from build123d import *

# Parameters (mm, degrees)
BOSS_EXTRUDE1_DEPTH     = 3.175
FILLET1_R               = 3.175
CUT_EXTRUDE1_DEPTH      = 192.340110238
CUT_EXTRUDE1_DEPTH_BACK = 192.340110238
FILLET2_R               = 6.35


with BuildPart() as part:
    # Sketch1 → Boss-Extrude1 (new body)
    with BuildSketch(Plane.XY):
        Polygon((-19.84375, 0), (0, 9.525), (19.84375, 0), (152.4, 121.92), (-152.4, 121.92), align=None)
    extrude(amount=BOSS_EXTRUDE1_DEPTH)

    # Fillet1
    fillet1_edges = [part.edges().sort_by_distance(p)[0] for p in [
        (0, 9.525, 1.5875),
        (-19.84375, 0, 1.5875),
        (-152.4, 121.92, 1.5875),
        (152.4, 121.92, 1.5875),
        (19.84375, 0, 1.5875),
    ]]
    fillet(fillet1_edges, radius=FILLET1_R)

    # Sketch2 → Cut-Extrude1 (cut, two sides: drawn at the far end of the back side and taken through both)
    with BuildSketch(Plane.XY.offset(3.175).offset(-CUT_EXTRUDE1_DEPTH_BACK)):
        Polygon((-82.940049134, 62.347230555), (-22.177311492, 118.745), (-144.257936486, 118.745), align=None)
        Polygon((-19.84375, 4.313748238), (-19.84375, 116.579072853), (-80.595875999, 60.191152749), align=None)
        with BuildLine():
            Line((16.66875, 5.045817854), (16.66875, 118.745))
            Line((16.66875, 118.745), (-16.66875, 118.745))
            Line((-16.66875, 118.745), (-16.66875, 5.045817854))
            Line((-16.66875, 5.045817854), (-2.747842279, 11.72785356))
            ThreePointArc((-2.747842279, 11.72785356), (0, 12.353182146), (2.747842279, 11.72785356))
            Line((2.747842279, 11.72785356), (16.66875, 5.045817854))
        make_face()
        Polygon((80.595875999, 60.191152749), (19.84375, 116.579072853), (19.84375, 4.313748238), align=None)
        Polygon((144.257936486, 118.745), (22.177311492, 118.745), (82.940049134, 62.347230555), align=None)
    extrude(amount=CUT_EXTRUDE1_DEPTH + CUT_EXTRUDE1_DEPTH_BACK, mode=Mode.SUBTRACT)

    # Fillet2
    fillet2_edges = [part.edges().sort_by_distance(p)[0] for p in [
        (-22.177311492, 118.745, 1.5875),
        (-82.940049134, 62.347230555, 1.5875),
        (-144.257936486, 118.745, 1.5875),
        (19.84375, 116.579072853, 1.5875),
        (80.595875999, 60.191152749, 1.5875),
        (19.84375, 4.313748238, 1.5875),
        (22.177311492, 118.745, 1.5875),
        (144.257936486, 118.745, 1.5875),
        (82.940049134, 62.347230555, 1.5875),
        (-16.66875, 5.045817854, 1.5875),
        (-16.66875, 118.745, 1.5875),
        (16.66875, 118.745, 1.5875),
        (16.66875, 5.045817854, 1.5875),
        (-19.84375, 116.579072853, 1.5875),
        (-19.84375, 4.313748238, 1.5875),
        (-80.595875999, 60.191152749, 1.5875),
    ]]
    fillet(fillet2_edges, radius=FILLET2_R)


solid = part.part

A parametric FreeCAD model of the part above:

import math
import FreeCAD as App
import Part
import Sketcher

V = App.Vector
Q = App.Units.Quantity


def edges_at(feature, points):
    """Names of the edges that pass closest to the given points."""
    edges = feature.Shape.Edges
    near = lambda p: min(range(len(edges)), key=lambda i: edges[i].distToShape(Part.Vertex(*p))[0])
    return sorted({f"Edge{near(p) + 1}" for p in points})


def add_polygon(sketch, points):
    """Adds a closed chain of lines whose ends are joined by coincident constraints."""
    first, n = sketch.GeometryCount, len(points)
    for a, b in zip(points, points[1:] + points[:1]):
        sketch.addGeometry(Part.LineSegment(App.Vector(*a, 0), App.Vector(*b, 0)), False)
    for i in range(n):
        sketch.addConstraint(Sketcher.Constraint("Coincident", first + i, 2, first + (i + 1) % n, 1))

doc = App.newDocument("Part")
body = doc.addObject("PartDesign::Body", "Body")

# Sketch on XY plane
sketch1 = body.newObject("Sketcher::SketchObject", "Sketch")
sketch1.AttachmentSupport = (doc.getObject("XY_Plane"), [""])
sketch1.MapMode = "FlatFace"
add_polygon(sketch1, [(-19.84375, 0), (0, 9.525), (19.84375, 0), (152.4, 121.92), (-152.4, 121.92)])  # lines 0-4
sketch1.addConstraint(Sketcher.Constraint("Horizontal", 3))
sketch1.addConstraint(Sketcher.Constraint("Symmetric", 1, 2, 4, 2, -1, 1))
sketch1.addConstraint(Sketcher.Constraint("PointOnObject", 0, 2, -2))
sketch1.addConstraint(Sketcher.Constraint("PointOnObject", 1, 2, -1))
sketch1.addConstraint(Sketcher.Constraint("Equal", 2, 4))
sketch1.addConstraint(Sketcher.Constraint("DistanceX", 3, 2, 3, 1, Q("12 in")))
sketch1.addConstraint(Sketcher.Constraint("DistanceY", -1, 1, 2, 2, Q("4.8 in")))
sketch1.addConstraint(Sketcher.Constraint("DistanceY", -1, 1, 0, 2, Q("0.375 in")))
sketch1.addConstraint(Sketcher.Constraint("DistanceX", -1, 1, 1, 2, Q("0.78125 in")))
pad1 = body.newObject("PartDesign::Pad", "Pad")
pad1.Profile = sketch1
pad1.Length = Q("0.125 in")
doc.recompute()

fillet = body.newObject("PartDesign::Fillet", "Fillet")
fillet.Base = (pad1, edges_at(pad1, [
    (0, 9.525, 1.587),
    (-19.844, 0, 1.587),
    (-152.4, 121.92, 1.587),
    (152.4, 121.92, 1.587),
    (19.844, 0, 1.587),
]))
fillet.Radius = Q("0.125 in")

# Sketch on XY plane
sketch2 = body.newObject("Sketcher::SketchObject", "Sketch001")
sketch2.AttachmentSupport = (doc.getObject("XY_Plane"), [""])
sketch2.MapMode = "FlatFace"
sketch2.AttachmentOffset = App.Placement(V(0, 0, 0.125 * 25.4), App.Rotation())
add_polygon(sketch2, [(-82.940049, 62.347231), (-22.177311, 118.745), (-144.257936, 118.745)])  # lines 0-2
add_polygon(sketch2, [(-19.84375, 4.313748), (-19.84375, 116.579073), (-80.595876, 60.191153)])  # lines 3-5
sketch2.addGeometry(Part.LineSegment(V(16.66875, 5.045818, 0), V(16.66875, 118.745, 0)), False)  # 6
sketch2.addGeometry(Part.LineSegment(V(16.66875, 118.745, 0), V(-16.66875, 118.745, 0)), False)  # 7
sketch2.addGeometry(Part.LineSegment(V(-16.66875, 118.745, 0), V(-16.66875, 5.045818, 0)), False)  # 8
sketch2.addGeometry(Part.LineSegment(V(-16.66875, 5.045818, 0), V(-2.747842, 11.727854, 0)), False)  # 9
sketch2.addGeometry(Part.ArcOfCircle(Part.Circle(V(0, 6.003182, 0), V(0, 0, 1), 6.35), math.radians(64.358994), math.radians(115.641006)), False)  # 10
sketch2.addGeometry(Part.LineSegment(V(2.747842, 11.727854, 0), V(16.66875, 5.045818, 0)), False)  # 11
add_polygon(sketch2, [(80.595876, 60.191153), (19.84375, 116.579073), (19.84375, 4.313748)])  # lines 12-14
add_polygon(sketch2, [(144.257936, 118.745), (22.177311, 118.745), (82.940049, 62.347231)])  # lines 15-17
sketch2.addConstraint(Sketcher.Constraint("Coincident", 6, 2, 7, 1))
sketch2.addConstraint(Sketcher.Constraint("Coincident", 7, 2, 8, 1))
sketch2.addConstraint(Sketcher.Constraint("Coincident", 8, 2, 9, 1))
sketch2.addConstraint(Sketcher.Constraint("Tangent", 9, 2, 10, 2))
sketch2.addConstraint(Sketcher.Constraint("Tangent", 10, 1, 11, 1))
sketch2.addConstraint(Sketcher.Constraint("Coincident", 11, 2, 6, 1))
sketch2.addConstraint(Sketcher.Constraint("Horizontal", 1))
sketch2.addConstraint(Sketcher.Constraint("Vertical", 3))
sketch2.addConstraint(Sketcher.Constraint("Vertical", 6))
sketch2.addConstraint(Sketcher.Constraint("Horizontal", 7))
sketch2.addConstraint(Sketcher.Constraint("Vertical", 8))
sketch2.addConstraint(Sketcher.Constraint("Vertical", 13))
sketch2.addConstraint(Sketcher.Constraint("Horizontal", 15))
sketch2.addConstraint(Sketcher.Constraint("Symmetric", 9, 2, 10, 1, -2))
sketch2.addConstraint(Sketcher.Constraint("Symmetric", 3, 2, 12, 2, -2))
sketch2.addConstraint(Sketcher.Constraint("Symmetric", 4, 2, 14, 2, -2))
sketch2.addConstraint(Sketcher.Constraint("Symmetric", 0, 2, 15, 2, -2))
sketch2.addConstraint(Sketcher.Constraint("Symmetric", 2, 2, 16, 2, -2))
sketch2.addConstraint(Sketcher.Constraint("Parallel", 0, 4))
sketch2.addConstraint(Sketcher.Constraint("Parallel", 2, 5))
sketch2.addConstraint(Sketcher.Constraint("Parallel", 14, 17))
sketch2.addConstraint(Sketcher.Constraint("Horizontal", 1, 2, 6, 2))
sketch2.addConstraint(Sketcher.Constraint("Horizontal", 8, 2, 11, 2))
sketch2.addConstraint(Sketcher.Constraint("Horizontal", 5, 2, 13, 2))
sketch2.addConstraint(Sketcher.Constraint("Radius", 10, Q("0.25 in")))
sketch2.addConstraint(Sketcher.Constraint("DistanceX", 7, 2, 7, 1, Q("1.3125 in")))
sketch2.addConstraint(Sketcher.Constraint("DistanceY", -1, 1, 0, 2, Q("4.675 in")))
sketch2.addConstraint(Sketcher.Constraint("DistanceX", 3, 2, -1, 1, Q("0.78125 in")))
sketch2.addConstraint(Sketcher.Constraint("DistanceX", 2, 2, 3, 2, Q("63.096299 mm")))
sketch2.addConstraint(Sketcher.Constraint("DistanceY", 9, 2, 4, 2, Q("48.463299 mm")))
sketch2.addConstraint(Sketcher.Constraint("DistanceX", 1, 2, 1, 1, Q("122.080625 mm")))
sketch2.addConstraint(Sketcher.Constraint("DistanceY", 3, 1, 3, 2, Q("112.265325 mm")))
sketch2.addConstraint(Sketcher.Constraint("DistanceY", 6, 1, 6, 2, Q("113.699182 mm")))
sketch2.addConstraint(Sketcher.Constraint("DistanceX", 0, 2, -1, 1, Q("22.177311 mm")))
sketch2.addConstraint(Sketcher.Constraint("DistanceY", -1, 1, 2, 2, Q("62.347231 mm")))
sketch2.addConstraint(Sketcher.Constraint("DistanceY", -1, 1, 5, 2, Q("4.313748 mm")))
pocket1 = body.newObject("PartDesign::Pocket", "Pocket")
pocket1.Profile = sketch2
pocket1.Type = "ThroughAll"
pocket1.Midplane = True
doc.recompute()

fillet2 = body.newObject("PartDesign::Fillet", "Fillet001")
fillet2.Base = (pocket1, edges_at(pocket1, [
    (-22.177, 118.745, 1.587),
    (-82.94, 62.347, 1.587),
    (-144.258, 118.745, 1.587),
    (19.844, 116.579, 1.587),
    (80.596, 60.191, 1.587),
    (19.844, 4.314, 1.587),
    (22.177, 118.745, 1.587),
    (144.258, 118.745, 1.587),
    (82.94, 62.347, 1.587),
    (-16.669, 5.046, 1.587),
    (-16.669, 118.745, 1.587),
    (16.669, 118.745, 1.587),
    (16.669, 5.046, 1.587),
    (-19.844, 116.579, 1.587),
    (-19.844, 4.314, 1.587),
    (-80.596, 60.191, 1.587),
]))
fillet2.Radius = Q("0.25 in")

doc.recompute()
